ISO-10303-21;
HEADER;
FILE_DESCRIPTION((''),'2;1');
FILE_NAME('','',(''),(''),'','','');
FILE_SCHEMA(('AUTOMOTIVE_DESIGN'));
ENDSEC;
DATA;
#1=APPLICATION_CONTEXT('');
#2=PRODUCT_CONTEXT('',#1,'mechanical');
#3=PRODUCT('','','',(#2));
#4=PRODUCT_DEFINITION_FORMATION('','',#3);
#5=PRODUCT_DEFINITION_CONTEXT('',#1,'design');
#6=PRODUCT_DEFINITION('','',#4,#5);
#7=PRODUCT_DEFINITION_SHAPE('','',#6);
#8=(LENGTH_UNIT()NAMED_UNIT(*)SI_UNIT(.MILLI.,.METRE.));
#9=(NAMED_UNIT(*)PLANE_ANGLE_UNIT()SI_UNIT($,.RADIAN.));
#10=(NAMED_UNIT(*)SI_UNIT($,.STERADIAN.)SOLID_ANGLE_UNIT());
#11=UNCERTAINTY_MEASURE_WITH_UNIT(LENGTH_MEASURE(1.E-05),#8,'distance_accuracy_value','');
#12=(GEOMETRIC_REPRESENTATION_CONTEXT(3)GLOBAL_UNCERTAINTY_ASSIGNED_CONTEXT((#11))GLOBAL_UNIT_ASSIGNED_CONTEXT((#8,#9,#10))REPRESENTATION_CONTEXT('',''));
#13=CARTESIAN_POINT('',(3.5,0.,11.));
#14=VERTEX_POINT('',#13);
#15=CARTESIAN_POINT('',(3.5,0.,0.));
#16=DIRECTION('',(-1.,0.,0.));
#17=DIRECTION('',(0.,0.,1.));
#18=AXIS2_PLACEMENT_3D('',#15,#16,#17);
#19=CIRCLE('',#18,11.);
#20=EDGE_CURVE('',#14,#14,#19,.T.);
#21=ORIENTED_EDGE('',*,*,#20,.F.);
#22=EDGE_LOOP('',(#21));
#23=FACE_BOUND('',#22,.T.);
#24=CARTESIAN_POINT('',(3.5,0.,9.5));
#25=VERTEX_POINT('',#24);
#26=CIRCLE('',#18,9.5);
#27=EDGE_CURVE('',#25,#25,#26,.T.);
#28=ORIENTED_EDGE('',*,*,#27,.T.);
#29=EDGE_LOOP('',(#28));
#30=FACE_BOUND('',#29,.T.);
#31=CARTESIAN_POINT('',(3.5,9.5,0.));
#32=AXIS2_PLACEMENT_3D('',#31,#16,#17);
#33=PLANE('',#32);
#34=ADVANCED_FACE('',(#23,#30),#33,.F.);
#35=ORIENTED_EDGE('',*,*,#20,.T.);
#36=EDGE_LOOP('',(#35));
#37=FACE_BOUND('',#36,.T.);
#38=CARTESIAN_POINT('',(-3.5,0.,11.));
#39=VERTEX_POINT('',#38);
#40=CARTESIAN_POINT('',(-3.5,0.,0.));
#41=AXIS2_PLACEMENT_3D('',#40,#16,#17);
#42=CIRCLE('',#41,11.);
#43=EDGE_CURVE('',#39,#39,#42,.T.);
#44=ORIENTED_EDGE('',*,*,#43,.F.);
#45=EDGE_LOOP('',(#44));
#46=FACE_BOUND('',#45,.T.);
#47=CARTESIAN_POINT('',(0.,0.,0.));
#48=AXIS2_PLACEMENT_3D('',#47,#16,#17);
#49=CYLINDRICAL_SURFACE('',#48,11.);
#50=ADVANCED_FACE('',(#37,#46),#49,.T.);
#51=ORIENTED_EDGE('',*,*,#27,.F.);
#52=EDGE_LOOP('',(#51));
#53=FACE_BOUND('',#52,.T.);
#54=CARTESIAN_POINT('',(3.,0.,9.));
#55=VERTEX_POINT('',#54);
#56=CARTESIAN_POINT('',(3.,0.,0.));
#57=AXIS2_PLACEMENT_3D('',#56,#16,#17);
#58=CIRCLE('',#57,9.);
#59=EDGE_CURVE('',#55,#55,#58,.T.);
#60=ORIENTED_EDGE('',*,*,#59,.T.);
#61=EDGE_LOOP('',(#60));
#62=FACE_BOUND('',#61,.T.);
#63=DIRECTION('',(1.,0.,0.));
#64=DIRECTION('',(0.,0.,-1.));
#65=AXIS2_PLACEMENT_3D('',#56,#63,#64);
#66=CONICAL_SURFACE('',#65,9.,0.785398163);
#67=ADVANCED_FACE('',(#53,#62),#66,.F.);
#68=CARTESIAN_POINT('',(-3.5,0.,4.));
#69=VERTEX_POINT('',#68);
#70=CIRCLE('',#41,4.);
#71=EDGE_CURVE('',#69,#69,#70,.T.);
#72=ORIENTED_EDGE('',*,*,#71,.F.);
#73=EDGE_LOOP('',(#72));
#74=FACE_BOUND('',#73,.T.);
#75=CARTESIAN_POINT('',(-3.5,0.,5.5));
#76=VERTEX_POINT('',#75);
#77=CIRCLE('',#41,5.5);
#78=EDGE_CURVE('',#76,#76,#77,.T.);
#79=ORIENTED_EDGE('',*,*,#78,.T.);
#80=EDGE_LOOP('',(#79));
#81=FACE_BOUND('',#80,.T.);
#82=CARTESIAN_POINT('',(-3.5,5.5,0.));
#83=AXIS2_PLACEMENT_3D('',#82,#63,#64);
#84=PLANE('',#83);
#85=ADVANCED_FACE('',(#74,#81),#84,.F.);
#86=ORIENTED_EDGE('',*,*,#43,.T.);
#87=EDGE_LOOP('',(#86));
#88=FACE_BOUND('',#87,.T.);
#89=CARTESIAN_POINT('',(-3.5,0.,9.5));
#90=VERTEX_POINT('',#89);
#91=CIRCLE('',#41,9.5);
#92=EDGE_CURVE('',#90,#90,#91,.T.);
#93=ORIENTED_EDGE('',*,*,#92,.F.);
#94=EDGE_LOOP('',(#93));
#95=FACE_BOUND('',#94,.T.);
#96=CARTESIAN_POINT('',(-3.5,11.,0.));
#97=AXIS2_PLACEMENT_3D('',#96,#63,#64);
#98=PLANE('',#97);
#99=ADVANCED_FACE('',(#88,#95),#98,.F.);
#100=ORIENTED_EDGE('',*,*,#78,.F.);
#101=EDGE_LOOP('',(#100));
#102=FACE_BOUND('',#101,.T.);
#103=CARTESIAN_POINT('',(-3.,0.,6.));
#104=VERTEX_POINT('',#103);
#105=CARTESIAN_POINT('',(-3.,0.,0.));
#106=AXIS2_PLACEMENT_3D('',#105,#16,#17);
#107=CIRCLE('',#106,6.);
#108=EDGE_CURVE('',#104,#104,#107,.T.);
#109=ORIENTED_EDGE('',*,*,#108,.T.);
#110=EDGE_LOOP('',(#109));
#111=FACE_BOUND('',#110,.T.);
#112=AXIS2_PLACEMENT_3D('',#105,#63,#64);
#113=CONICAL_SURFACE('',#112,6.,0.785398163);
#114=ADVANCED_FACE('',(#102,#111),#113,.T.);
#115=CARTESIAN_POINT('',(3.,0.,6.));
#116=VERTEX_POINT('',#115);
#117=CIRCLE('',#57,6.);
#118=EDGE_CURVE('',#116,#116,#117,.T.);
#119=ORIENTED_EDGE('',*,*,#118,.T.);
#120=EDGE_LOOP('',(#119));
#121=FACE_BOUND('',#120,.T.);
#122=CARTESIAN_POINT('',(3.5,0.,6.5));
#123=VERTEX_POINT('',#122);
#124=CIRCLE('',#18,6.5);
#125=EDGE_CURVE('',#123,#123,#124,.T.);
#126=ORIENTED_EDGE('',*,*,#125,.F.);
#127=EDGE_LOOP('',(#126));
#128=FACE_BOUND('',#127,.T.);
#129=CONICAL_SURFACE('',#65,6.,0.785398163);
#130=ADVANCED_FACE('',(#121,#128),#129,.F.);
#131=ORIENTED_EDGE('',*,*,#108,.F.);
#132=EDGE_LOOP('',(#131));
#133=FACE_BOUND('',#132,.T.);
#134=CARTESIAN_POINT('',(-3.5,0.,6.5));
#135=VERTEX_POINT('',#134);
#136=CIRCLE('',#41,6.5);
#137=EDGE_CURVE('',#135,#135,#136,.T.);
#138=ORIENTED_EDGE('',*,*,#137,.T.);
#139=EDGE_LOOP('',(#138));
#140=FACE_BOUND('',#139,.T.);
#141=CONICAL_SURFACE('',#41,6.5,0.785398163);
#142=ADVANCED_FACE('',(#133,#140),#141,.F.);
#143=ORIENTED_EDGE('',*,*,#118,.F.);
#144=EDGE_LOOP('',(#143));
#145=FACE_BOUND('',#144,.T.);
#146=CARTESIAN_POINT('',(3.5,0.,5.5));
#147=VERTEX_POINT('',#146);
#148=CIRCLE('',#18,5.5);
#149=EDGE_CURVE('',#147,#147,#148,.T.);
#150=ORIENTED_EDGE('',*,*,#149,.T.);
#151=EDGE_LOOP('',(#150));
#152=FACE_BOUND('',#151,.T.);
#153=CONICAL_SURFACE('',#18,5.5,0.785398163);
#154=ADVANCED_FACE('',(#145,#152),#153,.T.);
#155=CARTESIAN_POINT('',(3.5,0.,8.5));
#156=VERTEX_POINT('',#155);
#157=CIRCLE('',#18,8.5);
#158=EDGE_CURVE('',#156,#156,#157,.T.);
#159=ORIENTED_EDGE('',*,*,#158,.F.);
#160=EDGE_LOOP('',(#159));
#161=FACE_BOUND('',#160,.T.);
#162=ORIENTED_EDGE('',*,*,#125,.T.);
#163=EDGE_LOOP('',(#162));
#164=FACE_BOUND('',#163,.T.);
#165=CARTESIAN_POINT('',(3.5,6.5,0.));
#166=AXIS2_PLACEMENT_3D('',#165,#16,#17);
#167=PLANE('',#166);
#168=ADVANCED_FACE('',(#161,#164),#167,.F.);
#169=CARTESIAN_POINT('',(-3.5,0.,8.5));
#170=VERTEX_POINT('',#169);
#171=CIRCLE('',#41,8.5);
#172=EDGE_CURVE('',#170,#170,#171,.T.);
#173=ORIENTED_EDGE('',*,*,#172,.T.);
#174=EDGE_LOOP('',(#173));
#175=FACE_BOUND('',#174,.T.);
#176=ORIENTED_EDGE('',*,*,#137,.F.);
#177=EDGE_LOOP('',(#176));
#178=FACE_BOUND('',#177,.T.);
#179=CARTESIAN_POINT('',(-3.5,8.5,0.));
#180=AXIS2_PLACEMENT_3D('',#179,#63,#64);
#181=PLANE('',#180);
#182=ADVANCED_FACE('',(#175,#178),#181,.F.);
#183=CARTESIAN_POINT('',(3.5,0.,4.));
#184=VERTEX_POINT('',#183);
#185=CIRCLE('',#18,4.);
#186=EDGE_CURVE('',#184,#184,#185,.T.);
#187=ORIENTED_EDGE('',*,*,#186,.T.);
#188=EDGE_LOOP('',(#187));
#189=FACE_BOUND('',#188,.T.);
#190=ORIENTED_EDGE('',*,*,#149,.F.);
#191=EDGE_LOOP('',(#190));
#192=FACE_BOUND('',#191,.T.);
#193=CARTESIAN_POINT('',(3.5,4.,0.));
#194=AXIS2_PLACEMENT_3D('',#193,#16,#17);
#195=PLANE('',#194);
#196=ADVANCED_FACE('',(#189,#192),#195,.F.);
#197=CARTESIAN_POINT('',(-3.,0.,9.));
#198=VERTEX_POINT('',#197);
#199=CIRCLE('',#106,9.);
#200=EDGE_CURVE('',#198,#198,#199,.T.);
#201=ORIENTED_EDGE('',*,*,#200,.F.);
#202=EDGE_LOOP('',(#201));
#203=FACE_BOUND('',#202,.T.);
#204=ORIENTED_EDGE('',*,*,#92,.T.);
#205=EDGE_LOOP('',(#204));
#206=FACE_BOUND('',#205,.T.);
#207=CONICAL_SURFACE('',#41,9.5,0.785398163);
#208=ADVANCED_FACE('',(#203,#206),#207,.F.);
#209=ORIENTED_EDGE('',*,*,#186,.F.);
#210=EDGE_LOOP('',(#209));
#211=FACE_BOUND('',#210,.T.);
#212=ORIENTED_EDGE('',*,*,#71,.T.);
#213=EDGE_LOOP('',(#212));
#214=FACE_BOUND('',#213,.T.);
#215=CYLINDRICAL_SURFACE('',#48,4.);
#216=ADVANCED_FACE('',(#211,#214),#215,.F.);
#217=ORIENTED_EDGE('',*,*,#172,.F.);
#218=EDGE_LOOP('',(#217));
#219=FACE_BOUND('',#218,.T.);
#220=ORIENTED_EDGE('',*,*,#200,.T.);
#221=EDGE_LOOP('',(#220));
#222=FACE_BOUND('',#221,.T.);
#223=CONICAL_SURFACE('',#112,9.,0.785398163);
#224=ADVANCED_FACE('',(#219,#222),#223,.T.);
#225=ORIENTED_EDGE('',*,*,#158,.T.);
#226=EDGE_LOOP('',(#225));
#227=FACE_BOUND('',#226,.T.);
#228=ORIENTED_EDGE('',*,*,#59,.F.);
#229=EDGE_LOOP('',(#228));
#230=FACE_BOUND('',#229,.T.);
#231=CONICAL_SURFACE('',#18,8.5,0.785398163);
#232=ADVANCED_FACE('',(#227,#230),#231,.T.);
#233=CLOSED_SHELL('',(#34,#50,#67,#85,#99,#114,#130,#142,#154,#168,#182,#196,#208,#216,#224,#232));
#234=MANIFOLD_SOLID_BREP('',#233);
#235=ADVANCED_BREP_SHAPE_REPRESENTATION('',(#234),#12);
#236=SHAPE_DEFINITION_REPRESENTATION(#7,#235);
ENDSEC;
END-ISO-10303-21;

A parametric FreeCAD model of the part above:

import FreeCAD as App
import Part
import Sketcher


def add_polygon(sketch, points):
    """Adds a closed chain of lines whose ends are joined by coincident constraints."""
    first, n = sketch.GeometryCount, len(points)
    for a, b in zip(points, points[1:] + points[:1]):
        sketch.addGeometry(Part.LineSegment(App.Vector(*a, 0), App.Vector(*b, 0)), False)
    for i in range(n):
        sketch.addConstraint(Sketcher.Constraint("Coincident", first + i, 2, first + (i + 1) % n, 1))

doc = App.newDocument("Part")
body = doc.addObject("PartDesign::Body", "Body")

sketch1 = body.newObject("Sketcher::SketchObject", "Sketch")
sketch1.AttachmentSupport = (doc.getObject("XY_Plane"), [""])
sketch1.MapMode = "FlatFace"
add_polygon(sketch1, [(-3.5, 4), (3.5, 4), (3.5, 5.5), (3, 6), (3.5, 6.5), (3.5, 8.5), (3, 9), (3.5, 9.5), (3.5, 11), (-3.5, 11), (-3.5, 9.5), (-3, 9), (-3.5, 8.5), (-3.5, 6.5), (-3, 6), (-3.5, 5.5)])
sketch1.addConstraint([
    Sketcher.Constraint("Horizontal", 0),
    Sketcher.Constraint("Vertical", 1),
    Sketcher.Constraint("Vertical", 4),
    Sketcher.Constraint("Vertical", 7),
    Sketcher.Constraint("Horizontal", 8),
    Sketcher.Constraint("Vertical", 9),
    Sketcher.Constraint("Vertical", 12),
    Sketcher.Constraint("Vertical", 15),
    Sketcher.Constraint("Symmetric", 6, 2, 9, 2, -2),
    Sketcher.Constraint("Symmetric", 5, 2, 10, 2, -2),
    Sketcher.Constraint("Symmetric", 4, 2, 11, 2, -2),
    Sketcher.Constraint("Symmetric", 2, 2, 13, 2, -2),
    Sketcher.Constraint("Symmetric", 1, 2, 14, 2, -2),
    Sketcher.Constraint("Perpendicular", 2, 3),
    Sketcher.Constraint("Perpendicular", 3, 5),
    Sketcher.Constraint("Perpendicular", 5, 6),
    Sketcher.Constraint("Perpendicular", 6, 10),
    Sketcher.Constraint("Perpendicular", 11, 13),
    Sketcher.Constraint("Vertical", 1, 2, 3, 2),
    Sketcher.Constraint("Vertical", 2, 2, 5, 2),
    Sketcher.Constraint("Vertical", 4, 2, 6, 2),
    Sketcher.Constraint("Equal", 1, 7),
    Sketcher.Constraint("DistanceX", 0, 1, 0, 2, 7.0),
    Sketcher.Constraint("DistanceY", 4, 1, 4, 2, 2.0),
    Sketcher.Constraint("DistanceY", 1, 1, 1, 2, 1.5),
    Sketcher.Constraint("DistanceY", -1, 1, 0, 2, 4.0),
    Sketcher.Constraint("DistanceX", -1, 1, 2, 2, 3.0),
])
revolution = body.newObject("PartDesign::Revolution", "Revolution")
revolution.Profile = sketch1
revolution.ReferenceAxis = (sketch1, ["H_Axis"])
revolution.Angle = 360

doc.recompute()
